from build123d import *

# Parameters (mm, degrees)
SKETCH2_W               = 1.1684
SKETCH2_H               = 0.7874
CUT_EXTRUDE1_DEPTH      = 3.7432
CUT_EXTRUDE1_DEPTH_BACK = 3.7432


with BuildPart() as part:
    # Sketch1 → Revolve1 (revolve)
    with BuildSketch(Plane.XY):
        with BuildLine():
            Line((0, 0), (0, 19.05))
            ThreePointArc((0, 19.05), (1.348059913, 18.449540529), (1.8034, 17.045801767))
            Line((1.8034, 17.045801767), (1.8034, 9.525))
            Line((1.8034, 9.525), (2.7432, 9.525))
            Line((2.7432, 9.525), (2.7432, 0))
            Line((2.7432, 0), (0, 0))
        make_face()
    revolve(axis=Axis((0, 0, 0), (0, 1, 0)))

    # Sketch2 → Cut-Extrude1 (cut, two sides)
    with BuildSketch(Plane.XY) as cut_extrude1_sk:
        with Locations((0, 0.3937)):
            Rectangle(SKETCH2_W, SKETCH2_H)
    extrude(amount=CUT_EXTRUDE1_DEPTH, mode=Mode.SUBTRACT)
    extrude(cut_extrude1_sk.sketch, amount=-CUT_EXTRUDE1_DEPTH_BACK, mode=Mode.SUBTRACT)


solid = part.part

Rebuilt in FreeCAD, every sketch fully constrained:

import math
import FreeCAD as App
import Part
import Sketcher
from FreeCAD import Vector
Q = App.Units.Quantity

doc = App.newDocument("Part")
body = doc.addObject("PartDesign::Body", "Body")

sketch1 = doc.addObject("Sketcher::SketchObject", "Sketch")
body.addObject(sketch1)
sketch1.AttachmentSupport = (doc.XY_Plane, [""])
sketch1.MapMode = "FlatFace"
sketch1.addGeometry([
    Part.LineSegment(Vector(0, 19.05, 0), Vector(0, 0, 0)),
    Part.LineSegment(Vector(0, 0, 0), Vector(2.7432, 0, 0)),
    Part.LineSegment(Vector(2.7432, 0, 0), Vector(2.7432, 9.525, 0)),
    Part.LineSegment(Vector(2.7432, 9.525, 0), Vector(1.8034, 9.525, 0)),
    Part.LineSegment(Vector(1.8034, 9.525, 0), Vector(1.8034, 17.045802, 0)),
    Part.ArcOfCircle(Part.Circle(Vector(0, 17.236541, 0), Vector(0, 0, 1), 1.813459), math.radians(-6.03753), math.radians(90)),
], False)
sketch1.addConstraint([
    Sketcher.Constraint("Coincident", 0, 2, 1, 1),
    Sketcher.Constraint("Coincident", 1, 2, 2, 1),
    Sketcher.Constraint("Coincident", 2, 2, 3, 1),
    Sketcher.Constraint("Coincident", 3, 2, 4, 1),
    Sketcher.Constraint("Coincident", 4, 2, 5, 1),
    Sketcher.Constraint("Coincident", 5, 2, 0, 1),
    Sketcher.Constraint("Vertical", 0),
    Sketcher.Constraint("Horizontal", 1),
    Sketcher.Constraint("Vertical", 2),
    Sketcher.Constraint("Horizontal", 3),
    Sketcher.Constraint("Vertical", 4),
    Sketcher.Constraint("Coincident", 0, 2, -1, 1),
    Sketcher.Constraint("PointOnObject", 5, 3, -2),
    Sketcher.Constraint("DistanceY", 0, 2, 0, 1, Q("0.75 in")),
    Sketcher.Constraint("DistanceX", 1, 1, 1, 2, Q("0.108 in")),
    Sketcher.Constraint("DistanceX", 3, 2, 3, 1, Q("0.037 in")),
    Sketcher.Constraint("DistanceY", 2, 1, 2, 2, Q("0.375 in")),
    Sketcher.Constraint("Radius", 5, Q("1.813459 mm")),
])
revolution = doc.addObject("PartDesign::Revolution", "Revolution")
body.addObject(revolution)
revolution.Profile = sketch1
revolution.ReferenceAxis = (sketch1, ["V_Axis"])
revolution.Angle = 360

sketch2 = doc.addObject("Sketcher::SketchObject", "Sketch001")
body.addObject(sketch2)
sketch2.AttachmentSupport = (doc.XY_Plane, [""])
sketch2.MapMode = "FlatFace"
sketch2.addGeometry([
    Part.LineSegment(Vector(-0.5842, 0.7874, 0), Vector(-0.5842, 0, 0)),
    Part.LineSegment(Vector(-0.5842, 0, 0), Vector(0.5842, 0, 0)),
    Part.LineSegment(Vector(0.5842, 0, 0), Vector(0.5842, 0.7874, 0)),
    Part.LineSegment(Vector(0.5842, 0.7874, 0), Vector(-0.5842, 0.7874, 0)),
], False)
sketch2.addConstraint([
    Sketcher.Constraint("Coincident", 0, 2, 1, 1),
    Sketcher.Constraint("Coincident", 1, 2, 2, 1),
    Sketcher.Constraint("Coincident", 2, 2, 3, 1),
    Sketcher.Constraint("Coincident", 3, 2, 0, 1),
    Sketcher.Constraint("Vertical", 0),
    Sketcher.Constraint("Horizontal", 1),
    Sketcher.Constraint("Vertical", 2),
    Sketcher.Constraint("Horizontal", 3),
    Sketcher.Constraint("Symmetric", 0, 2, 1, 2, -1, 1),
    Sketcher.Constraint("DistanceX", 1, 1, 1, 2, Q("0.046 in")),
    Sketcher.Constraint("DistanceY", 0, 2, 0, 1, Q("0.031 in")),
])
pocket1 = doc.addObject("PartDesign::Pocket", "Pocket")
body.addObject(pocket1)
pocket1.Profile = sketch2
pocket1.Type = "ThroughAll"
pocket1.Midplane = True

doc.recompute()
